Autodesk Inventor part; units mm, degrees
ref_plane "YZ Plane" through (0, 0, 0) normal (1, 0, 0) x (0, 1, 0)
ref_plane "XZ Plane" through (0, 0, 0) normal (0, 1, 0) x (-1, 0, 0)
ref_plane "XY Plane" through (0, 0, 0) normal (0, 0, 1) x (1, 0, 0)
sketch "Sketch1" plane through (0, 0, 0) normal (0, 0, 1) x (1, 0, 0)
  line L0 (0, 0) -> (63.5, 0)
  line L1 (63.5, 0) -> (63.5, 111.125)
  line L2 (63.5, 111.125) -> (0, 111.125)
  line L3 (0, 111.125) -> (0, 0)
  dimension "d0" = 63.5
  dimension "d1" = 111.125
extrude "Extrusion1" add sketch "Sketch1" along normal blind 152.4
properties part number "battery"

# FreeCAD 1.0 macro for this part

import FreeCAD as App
import Part
import Sketcher

V = App.Vector
Q = App.Units.Quantity

doc = App.newDocument("Part")
body = doc.addObject("PartDesign::Body", "Body")

sketch1 = body.newObject("Sketcher::SketchObject", "Sketch")
sketch1.AttachmentSupport = (doc.getObject("XY_Plane"), [""])
sketch1.MapMode = "FlatFace"
sketch1.addGeometry([
    Part.LineSegment(V(0, 111, 0), V(0, 0, 0)),
    Part.LineSegment(V(0, 0, 0), V(64, 0, 0)),
    Part.LineSegment(V(64, 0, 0), V(64, 111, 0)),
    Part.LineSegment(V(64, 111, 0), V(0, 111, 0)),
], False)
sketch1.addConstraint([
    Sketcher.Constraint("Coincident", 0, 2, 1, 1),
    Sketcher.Constraint("Coincident", 1, 2, 2, 1),
    Sketcher.Constraint("Coincident", 2, 2, 3, 1),
    Sketcher.Constraint("Coincident", 3, 2, 0, 1),
    Sketcher.Constraint("Vertical", 0),
    Sketcher.Constraint("Horizontal", 1),
    Sketcher.Constraint("Vertical", 2),
    Sketcher.Constraint("Horizontal", 3),
    Sketcher.Constraint("Coincident", 0, 2, -1, 1),
    Sketcher.Constraint("DistanceX", 1, 1, 1, 2, Q("2.5 in")),
    Sketcher.Constraint("DistanceY", 0, 2, 0, 1, Q("4.375 in")),
])
pad1 = body.newObject("PartDesign::Pad", "Pad")
pad1.Profile = sketch1
pad1.Length = Q("6 in")

doc.recompute()
